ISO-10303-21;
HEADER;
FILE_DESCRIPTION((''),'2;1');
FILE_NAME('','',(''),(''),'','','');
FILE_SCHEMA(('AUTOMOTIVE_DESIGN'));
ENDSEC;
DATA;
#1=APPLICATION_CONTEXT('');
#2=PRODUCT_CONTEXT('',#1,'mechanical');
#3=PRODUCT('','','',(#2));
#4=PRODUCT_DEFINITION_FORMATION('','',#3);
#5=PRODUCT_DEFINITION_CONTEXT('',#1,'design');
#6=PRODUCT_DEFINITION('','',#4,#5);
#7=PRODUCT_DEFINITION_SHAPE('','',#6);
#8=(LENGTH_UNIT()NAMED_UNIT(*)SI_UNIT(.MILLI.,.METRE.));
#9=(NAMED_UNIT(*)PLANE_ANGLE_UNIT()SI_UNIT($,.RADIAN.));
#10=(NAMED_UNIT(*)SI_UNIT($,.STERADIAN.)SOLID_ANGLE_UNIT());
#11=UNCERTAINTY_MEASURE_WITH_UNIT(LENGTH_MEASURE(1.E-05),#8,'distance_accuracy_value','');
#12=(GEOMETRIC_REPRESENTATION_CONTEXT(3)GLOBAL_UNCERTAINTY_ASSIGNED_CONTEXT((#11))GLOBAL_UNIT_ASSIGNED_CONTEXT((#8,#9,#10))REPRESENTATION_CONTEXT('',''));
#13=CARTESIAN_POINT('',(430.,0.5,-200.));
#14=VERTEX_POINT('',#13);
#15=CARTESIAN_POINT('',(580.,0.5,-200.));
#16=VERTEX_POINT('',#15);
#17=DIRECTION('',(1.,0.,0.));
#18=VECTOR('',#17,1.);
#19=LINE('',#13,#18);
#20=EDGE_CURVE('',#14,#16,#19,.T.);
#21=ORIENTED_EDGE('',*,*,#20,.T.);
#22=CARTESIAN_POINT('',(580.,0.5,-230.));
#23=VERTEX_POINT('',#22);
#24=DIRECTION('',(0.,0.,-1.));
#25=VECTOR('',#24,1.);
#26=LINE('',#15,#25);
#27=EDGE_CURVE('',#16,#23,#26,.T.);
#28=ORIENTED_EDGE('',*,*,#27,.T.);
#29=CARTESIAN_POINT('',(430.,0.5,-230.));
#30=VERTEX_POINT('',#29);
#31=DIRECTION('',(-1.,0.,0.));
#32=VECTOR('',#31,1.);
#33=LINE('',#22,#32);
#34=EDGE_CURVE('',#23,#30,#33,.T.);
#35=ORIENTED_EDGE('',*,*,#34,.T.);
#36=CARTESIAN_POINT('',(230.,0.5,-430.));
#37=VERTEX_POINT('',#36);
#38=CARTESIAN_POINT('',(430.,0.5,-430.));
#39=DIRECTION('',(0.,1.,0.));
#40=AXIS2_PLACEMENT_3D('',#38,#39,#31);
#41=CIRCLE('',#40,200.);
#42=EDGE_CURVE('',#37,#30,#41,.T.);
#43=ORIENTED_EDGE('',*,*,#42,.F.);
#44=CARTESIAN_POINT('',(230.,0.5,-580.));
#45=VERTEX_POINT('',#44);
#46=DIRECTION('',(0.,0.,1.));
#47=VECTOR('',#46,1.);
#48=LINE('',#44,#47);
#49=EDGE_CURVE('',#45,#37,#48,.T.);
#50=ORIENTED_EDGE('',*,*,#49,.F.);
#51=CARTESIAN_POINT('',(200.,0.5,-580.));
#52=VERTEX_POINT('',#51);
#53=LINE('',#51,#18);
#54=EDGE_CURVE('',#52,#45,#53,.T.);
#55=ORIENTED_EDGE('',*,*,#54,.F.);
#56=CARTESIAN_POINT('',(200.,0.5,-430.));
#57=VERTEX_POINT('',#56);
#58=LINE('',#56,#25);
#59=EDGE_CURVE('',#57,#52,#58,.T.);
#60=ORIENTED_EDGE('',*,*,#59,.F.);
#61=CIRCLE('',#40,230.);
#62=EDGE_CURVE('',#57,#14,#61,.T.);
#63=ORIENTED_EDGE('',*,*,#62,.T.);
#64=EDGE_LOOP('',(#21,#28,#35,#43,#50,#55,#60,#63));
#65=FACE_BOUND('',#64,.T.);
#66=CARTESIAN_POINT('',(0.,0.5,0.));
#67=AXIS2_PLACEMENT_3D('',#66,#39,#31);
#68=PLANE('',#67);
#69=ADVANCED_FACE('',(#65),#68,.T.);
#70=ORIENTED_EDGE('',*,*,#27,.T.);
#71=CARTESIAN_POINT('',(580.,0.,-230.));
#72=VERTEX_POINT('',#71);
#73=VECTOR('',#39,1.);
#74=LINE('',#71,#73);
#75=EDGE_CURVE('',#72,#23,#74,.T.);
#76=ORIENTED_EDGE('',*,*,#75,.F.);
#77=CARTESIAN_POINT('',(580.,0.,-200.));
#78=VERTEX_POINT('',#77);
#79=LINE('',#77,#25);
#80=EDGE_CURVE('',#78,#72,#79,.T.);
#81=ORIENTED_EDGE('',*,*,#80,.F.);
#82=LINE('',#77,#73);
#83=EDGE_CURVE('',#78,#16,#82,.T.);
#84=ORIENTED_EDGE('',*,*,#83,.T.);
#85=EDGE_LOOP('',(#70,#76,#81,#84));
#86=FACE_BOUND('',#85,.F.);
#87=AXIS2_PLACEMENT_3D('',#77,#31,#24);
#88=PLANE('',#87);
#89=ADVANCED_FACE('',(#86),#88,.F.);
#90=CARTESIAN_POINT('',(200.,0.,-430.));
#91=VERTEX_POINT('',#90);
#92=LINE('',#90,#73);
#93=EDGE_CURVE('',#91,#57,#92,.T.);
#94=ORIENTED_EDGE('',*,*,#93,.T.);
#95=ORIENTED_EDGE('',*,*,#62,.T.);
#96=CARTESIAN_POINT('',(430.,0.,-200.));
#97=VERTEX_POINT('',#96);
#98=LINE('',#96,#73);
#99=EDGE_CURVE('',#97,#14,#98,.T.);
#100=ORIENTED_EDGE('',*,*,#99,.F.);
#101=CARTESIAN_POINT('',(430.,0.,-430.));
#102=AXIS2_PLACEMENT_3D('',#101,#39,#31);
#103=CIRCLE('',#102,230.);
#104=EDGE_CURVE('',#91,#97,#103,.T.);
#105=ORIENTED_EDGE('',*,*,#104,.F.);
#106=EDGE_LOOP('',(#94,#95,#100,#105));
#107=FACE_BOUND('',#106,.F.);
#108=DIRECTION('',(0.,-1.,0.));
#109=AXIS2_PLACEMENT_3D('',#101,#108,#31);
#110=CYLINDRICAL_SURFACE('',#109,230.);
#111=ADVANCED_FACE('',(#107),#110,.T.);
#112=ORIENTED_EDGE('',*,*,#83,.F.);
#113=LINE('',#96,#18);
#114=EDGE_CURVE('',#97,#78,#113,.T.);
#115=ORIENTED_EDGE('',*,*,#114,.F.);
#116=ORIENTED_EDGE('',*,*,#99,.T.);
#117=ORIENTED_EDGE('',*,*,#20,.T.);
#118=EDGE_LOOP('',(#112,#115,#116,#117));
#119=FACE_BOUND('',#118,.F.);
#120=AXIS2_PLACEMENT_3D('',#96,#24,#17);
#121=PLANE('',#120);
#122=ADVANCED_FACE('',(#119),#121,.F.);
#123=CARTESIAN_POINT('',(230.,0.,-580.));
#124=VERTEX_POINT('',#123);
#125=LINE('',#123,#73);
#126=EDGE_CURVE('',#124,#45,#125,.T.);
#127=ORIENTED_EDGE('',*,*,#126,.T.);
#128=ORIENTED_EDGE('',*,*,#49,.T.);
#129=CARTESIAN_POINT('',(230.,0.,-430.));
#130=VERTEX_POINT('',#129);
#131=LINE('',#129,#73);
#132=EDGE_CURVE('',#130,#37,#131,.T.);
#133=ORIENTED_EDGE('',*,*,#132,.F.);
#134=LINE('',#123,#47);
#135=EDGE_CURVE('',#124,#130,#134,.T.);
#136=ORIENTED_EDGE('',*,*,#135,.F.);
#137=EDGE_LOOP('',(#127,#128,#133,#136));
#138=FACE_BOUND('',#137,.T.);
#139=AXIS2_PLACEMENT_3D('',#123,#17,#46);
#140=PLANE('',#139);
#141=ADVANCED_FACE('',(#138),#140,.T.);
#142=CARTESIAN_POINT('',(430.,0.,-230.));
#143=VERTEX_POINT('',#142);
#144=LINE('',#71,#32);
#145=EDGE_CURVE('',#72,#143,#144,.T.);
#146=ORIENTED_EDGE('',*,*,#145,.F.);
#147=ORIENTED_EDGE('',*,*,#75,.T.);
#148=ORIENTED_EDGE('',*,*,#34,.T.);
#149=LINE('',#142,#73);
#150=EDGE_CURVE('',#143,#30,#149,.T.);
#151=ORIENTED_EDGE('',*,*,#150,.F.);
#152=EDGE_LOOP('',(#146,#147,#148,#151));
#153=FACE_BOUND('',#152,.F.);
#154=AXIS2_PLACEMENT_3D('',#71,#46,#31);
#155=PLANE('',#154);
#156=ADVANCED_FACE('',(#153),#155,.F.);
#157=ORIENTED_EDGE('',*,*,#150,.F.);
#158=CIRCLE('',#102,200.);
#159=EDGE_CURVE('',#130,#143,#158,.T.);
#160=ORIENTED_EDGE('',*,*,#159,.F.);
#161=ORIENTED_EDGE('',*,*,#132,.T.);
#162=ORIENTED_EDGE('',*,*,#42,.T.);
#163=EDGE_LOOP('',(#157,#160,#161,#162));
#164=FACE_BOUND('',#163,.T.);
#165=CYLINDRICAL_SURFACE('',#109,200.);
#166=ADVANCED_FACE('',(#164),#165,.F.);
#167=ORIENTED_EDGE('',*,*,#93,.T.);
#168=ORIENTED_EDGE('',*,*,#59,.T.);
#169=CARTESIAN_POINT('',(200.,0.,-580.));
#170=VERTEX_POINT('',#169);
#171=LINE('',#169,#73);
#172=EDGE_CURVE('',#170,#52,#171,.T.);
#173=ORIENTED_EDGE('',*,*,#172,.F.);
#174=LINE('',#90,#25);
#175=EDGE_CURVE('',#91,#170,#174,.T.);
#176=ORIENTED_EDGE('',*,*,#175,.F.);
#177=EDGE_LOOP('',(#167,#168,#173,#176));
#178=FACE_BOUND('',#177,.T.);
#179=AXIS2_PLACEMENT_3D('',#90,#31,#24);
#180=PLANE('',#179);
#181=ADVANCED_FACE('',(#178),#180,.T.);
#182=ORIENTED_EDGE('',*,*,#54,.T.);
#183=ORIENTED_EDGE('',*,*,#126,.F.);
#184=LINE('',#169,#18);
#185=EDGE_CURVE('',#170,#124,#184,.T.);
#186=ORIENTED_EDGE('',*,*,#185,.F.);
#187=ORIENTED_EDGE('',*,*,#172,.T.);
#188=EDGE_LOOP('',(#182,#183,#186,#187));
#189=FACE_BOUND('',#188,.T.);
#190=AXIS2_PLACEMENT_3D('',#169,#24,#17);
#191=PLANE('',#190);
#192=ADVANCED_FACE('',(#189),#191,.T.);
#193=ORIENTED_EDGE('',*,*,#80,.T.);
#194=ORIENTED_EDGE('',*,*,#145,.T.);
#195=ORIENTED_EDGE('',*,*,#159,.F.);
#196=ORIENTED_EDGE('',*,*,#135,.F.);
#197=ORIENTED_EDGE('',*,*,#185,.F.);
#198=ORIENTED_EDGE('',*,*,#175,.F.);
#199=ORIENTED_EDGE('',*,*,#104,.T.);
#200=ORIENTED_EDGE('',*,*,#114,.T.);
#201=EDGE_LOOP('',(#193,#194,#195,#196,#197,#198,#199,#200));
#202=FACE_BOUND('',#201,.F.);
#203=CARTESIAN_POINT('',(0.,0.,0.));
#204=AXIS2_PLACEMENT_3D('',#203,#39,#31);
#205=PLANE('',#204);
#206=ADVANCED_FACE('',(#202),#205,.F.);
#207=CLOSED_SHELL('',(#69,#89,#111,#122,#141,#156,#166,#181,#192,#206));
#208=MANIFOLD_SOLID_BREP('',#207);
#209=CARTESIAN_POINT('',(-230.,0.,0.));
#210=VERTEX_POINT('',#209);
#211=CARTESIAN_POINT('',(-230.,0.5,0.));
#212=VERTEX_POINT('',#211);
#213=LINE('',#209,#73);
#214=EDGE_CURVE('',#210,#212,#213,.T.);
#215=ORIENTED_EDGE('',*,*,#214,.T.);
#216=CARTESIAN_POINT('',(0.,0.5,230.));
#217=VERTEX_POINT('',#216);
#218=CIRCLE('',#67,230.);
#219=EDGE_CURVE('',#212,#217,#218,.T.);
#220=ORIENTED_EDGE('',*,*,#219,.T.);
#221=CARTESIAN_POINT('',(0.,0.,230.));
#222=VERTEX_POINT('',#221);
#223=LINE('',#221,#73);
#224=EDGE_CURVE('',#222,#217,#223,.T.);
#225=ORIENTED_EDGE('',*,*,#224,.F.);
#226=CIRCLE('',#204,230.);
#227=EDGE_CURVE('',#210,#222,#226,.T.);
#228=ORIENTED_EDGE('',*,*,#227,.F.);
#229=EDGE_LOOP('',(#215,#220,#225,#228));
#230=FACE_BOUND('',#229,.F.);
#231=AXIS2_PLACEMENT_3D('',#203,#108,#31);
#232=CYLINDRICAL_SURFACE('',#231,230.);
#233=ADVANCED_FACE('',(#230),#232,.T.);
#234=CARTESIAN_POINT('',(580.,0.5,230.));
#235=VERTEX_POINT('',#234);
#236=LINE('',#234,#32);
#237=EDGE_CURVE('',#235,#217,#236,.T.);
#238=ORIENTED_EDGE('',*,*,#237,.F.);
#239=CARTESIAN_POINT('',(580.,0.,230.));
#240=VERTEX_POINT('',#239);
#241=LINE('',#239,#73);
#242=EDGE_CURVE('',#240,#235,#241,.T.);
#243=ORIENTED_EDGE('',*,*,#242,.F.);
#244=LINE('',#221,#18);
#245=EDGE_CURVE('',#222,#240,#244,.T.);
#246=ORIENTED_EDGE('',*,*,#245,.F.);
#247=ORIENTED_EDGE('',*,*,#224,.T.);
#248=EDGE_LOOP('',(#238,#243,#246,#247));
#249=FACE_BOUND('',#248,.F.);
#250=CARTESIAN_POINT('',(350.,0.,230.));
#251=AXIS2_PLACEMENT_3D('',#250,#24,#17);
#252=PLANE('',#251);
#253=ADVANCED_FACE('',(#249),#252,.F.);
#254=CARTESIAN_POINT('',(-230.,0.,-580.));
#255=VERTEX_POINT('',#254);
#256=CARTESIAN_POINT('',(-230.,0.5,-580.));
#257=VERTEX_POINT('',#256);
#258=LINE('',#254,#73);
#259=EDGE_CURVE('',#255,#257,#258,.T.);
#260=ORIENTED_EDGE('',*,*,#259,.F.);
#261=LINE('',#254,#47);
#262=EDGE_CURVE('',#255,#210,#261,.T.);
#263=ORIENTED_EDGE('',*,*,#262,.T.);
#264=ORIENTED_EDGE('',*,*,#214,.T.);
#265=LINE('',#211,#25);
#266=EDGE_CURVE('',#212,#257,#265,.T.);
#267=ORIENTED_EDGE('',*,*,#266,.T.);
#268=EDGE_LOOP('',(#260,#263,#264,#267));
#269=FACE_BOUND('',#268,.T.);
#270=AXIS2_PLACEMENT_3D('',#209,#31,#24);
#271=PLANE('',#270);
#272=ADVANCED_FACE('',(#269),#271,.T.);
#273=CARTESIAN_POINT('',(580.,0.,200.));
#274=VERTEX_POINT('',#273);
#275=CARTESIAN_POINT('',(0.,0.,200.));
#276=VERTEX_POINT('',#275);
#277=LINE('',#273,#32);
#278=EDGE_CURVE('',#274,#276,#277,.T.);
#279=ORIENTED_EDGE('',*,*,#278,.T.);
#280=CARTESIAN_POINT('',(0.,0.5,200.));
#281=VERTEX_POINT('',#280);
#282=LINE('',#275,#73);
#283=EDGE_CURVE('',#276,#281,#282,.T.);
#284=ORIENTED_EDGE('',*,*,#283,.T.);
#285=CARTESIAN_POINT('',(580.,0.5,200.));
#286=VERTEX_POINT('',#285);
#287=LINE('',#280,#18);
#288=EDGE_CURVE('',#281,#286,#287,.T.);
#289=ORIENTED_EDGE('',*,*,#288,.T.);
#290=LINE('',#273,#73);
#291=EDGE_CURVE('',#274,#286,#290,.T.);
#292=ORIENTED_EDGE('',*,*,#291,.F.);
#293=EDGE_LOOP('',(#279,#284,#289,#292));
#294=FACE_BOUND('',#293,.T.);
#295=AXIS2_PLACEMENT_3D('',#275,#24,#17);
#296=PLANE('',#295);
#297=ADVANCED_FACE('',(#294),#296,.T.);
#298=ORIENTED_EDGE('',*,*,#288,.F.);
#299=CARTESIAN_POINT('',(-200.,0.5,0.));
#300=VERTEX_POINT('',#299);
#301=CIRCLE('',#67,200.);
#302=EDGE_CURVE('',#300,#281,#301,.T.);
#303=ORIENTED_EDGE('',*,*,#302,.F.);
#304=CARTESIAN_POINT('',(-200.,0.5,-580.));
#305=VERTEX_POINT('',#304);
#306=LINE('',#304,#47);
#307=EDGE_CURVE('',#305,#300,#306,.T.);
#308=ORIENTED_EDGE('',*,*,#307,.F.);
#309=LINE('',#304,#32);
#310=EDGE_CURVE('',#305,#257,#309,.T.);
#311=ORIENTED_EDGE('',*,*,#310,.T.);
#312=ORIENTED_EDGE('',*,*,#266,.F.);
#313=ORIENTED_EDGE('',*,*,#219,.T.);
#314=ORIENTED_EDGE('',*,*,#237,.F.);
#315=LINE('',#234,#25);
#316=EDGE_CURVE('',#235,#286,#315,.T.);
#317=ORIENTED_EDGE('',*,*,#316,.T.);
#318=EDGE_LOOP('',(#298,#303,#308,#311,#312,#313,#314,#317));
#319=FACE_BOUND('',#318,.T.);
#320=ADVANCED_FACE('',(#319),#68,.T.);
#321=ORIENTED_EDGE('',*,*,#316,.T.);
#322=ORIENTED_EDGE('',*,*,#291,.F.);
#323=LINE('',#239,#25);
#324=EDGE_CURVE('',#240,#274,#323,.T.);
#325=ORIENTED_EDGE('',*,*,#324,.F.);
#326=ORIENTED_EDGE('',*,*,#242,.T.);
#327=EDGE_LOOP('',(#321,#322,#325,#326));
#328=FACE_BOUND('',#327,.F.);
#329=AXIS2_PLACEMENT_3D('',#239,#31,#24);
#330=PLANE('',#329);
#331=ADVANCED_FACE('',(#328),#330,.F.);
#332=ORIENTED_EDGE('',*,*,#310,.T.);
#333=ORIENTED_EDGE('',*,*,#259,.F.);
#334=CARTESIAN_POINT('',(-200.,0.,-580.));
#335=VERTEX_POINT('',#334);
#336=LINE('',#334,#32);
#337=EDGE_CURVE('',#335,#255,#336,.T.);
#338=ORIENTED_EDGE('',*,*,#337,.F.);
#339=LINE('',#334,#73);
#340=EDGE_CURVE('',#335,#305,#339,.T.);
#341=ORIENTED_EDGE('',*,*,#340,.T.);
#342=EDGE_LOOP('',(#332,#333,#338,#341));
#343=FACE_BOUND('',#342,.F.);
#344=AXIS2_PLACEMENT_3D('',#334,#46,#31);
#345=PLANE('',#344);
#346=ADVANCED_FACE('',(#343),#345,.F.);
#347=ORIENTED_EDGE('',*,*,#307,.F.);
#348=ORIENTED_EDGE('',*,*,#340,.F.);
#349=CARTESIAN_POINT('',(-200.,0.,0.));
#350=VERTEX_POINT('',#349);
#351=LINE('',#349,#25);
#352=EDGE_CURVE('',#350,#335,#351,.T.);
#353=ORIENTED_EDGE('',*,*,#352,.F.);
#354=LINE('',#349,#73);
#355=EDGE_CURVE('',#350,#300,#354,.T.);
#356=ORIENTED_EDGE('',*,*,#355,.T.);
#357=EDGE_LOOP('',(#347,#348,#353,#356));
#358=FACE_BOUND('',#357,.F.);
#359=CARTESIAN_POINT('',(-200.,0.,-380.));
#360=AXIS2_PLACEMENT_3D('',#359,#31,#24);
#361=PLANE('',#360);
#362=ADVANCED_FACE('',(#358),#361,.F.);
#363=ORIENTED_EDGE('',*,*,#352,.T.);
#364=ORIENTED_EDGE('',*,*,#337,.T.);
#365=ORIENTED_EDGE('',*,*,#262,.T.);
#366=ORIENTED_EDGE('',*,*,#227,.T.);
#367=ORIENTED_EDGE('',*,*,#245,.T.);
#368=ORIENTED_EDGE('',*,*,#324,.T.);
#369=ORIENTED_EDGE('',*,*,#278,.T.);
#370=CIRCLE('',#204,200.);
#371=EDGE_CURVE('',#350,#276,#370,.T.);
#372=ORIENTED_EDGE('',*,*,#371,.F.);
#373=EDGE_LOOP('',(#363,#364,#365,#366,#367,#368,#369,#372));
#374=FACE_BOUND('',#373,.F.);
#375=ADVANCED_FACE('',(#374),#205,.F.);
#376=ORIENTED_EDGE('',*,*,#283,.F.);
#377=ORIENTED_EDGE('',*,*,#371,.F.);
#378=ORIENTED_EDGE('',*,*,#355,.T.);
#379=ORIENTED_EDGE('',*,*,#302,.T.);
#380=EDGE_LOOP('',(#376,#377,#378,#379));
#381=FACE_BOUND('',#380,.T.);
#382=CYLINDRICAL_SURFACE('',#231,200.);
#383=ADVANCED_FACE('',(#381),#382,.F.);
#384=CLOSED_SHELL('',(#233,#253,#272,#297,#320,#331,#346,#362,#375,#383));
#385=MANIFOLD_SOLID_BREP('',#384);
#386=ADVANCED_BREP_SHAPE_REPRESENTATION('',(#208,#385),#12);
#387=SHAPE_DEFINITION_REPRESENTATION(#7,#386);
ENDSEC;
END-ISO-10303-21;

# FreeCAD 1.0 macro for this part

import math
import FreeCAD as App
import Part
import Sketcher

V = App.Vector
Q = App.Units.Quantity

doc = App.newDocument("Part")
params = doc.addObject("Spreadsheet::Sheet", "Params")
for row, (alias, value) in enumerate([
    ("sketch1_radius", "200 mm"),
    ("sketch1_width", "30 mm"),
    ("sketch1_width2", "150 mm"),
    ("pad1_length", "0.5 mm"),
], start=1):
    params.set(f"A{row}", alias)
    params.set(f"B{row}", "=" + value)
    params.setAlias(f"B{row}", alias)

body = doc.addObject("PartDesign::Body", "Body")
body.AllowCompound = True

sketch1 = body.newObject("Sketcher::SketchObject", "Sketch")
sketch1.AttachmentSupport = (doc.getObject("XZ_Plane"), [""])
sketch1.MapMode = "FlatFace"
sketch1.addGeometry([
    Part.ArcOfCircle(Part.Circle(V(0, 0, 0), V(0, 0, 1), 200), math.radians(90), math.radians(180)),
    Part.LineSegment(V(-200, 0, 0), V(-200, -580, 0)),
    Part.LineSegment(V(-200, -580, 0), V(-230, -580, 0)),
    Part.LineSegment(V(-230, -580, 0), V(-230, 0, 0)),
    Part.ArcOfCircle(Part.Circle(V(0, 0, 0), V(0, 0, 1), 230), math.radians(90), math.radians(180)),
    Part.LineSegment(V(0, 230, 0), V(580, 230, 0)),
    Part.LineSegment(V(580, 230, 0), V(580, 200, 0)),
    Part.LineSegment(V(580, 200, 0), V(0, 200, 0)),
    Part.LineSegment(V(200, -580, 0), V(200, -430, 0)),
    Part.ArcOfCircle(Part.Circle(V(430, -430, 0), V(0, 0, 1), 230), math.radians(90), math.radians(180)),
    Part.LineSegment(V(430, -200, 0), V(580, -200, 0)),
    Part.LineSegment(V(580, -200, 0), V(580, -230, 0)),
    Part.LineSegment(V(580, -230, 0), V(430, -230, 0)),
    Part.ArcOfCircle(Part.Circle(V(430, -430, 0), V(0, 0, 1), 200), math.radians(90), math.radians(180)),
    Part.LineSegment(V(230, -430, 0), V(230, -580, 0)),
    Part.LineSegment(V(230, -580, 0), V(200, -580, 0)),
], False)
sketch1.addConstraint([
    Sketcher.Constraint("Tangent", 0, 2, 1, 1),
    Sketcher.Constraint("Coincident", 1, 2, 2, 1),
    Sketcher.Constraint("Coincident", 2, 2, 3, 1),
    Sketcher.Constraint("Tangent", 3, 2, 4, 2),
    Sketcher.Constraint("Tangent", 4, 1, 5, 1),
    Sketcher.Constraint("Coincident", 5, 2, 6, 1),
    Sketcher.Constraint("Coincident", 6, 2, 7, 1),
    Sketcher.Constraint("Tangent", 7, 2, 0, 1),
    Sketcher.Constraint("Tangent", 8, 2, 9, 2),
    Sketcher.Constraint("Tangent", 9, 1, 10, 1),
    Sketcher.Constraint("Coincident", 10, 2, 11, 1),
    Sketcher.Constraint("Coincident", 11, 2, 12, 1),
    Sketcher.Constraint("Tangent", 12, 2, 13, 1),
    Sketcher.Constraint("Tangent", 13, 2, 14, 1),
    Sketcher.Constraint("Coincident", 14, 2, 15, 1),
    Sketcher.Constraint("Coincident", 15, 2, 8, 1),
    Sketcher.Constraint("Vertical", 1),
    Sketcher.Constraint("Horizontal", 2),
    Sketcher.Constraint("Vertical", 3),
    Sketcher.Constraint("Horizontal", 5),
    Sketcher.Constraint("Vertical", 6),
    Sketcher.Constraint("Horizontal", 7),
    Sketcher.Constraint("Vertical", 8),
    Sketcher.Constraint("Horizontal", 10),
    Sketcher.Constraint("Vertical", 11),
    Sketcher.Constraint("Horizontal", 12),
    Sketcher.Constraint("Vertical", 14),
    Sketcher.Constraint("Horizontal", 15),
    Sketcher.Constraint("Coincident", 0, 3, -1, 1),
    Sketcher.Constraint("Coincident", 4, 3, -1, 1),
    Sketcher.Constraint("Coincident", 13, 3, 9, 3),
    Sketcher.Constraint("Equal", 4, 9),
    Sketcher.Constraint("Equal", 0, 13),
    Sketcher.Constraint("Symmetric", 2, 2, 14, 2, -2),
    Sketcher.Constraint("Symmetric", 6, 2, 10, 2, -1),
    Sketcher.Constraint("Equal", 7, 1),
    Sketcher.Constraint("Radius", 0, Q("200 mm")),
    Sketcher.Constraint("DistanceX", 2, 2, 2, 1, Q("30 mm")),
    Sketcher.Constraint("DistanceX", 10, 1, 10, 2, Q("150 mm")),
])
sketch1.setExpression("Constraints[36]", "Params.sketch1_radius")
sketch1.setExpression("Constraints[37]", "Params.sketch1_width")
sketch1.setExpression("Constraints[38]", "Params.sketch1_width2")
pad1 = body.newObject("PartDesign::Pad", "Pad")
pad1.Profile = sketch1
pad1.setExpression("Length", "Params.pad1_length")
pad1.Reversed = True

doc.recompute()
